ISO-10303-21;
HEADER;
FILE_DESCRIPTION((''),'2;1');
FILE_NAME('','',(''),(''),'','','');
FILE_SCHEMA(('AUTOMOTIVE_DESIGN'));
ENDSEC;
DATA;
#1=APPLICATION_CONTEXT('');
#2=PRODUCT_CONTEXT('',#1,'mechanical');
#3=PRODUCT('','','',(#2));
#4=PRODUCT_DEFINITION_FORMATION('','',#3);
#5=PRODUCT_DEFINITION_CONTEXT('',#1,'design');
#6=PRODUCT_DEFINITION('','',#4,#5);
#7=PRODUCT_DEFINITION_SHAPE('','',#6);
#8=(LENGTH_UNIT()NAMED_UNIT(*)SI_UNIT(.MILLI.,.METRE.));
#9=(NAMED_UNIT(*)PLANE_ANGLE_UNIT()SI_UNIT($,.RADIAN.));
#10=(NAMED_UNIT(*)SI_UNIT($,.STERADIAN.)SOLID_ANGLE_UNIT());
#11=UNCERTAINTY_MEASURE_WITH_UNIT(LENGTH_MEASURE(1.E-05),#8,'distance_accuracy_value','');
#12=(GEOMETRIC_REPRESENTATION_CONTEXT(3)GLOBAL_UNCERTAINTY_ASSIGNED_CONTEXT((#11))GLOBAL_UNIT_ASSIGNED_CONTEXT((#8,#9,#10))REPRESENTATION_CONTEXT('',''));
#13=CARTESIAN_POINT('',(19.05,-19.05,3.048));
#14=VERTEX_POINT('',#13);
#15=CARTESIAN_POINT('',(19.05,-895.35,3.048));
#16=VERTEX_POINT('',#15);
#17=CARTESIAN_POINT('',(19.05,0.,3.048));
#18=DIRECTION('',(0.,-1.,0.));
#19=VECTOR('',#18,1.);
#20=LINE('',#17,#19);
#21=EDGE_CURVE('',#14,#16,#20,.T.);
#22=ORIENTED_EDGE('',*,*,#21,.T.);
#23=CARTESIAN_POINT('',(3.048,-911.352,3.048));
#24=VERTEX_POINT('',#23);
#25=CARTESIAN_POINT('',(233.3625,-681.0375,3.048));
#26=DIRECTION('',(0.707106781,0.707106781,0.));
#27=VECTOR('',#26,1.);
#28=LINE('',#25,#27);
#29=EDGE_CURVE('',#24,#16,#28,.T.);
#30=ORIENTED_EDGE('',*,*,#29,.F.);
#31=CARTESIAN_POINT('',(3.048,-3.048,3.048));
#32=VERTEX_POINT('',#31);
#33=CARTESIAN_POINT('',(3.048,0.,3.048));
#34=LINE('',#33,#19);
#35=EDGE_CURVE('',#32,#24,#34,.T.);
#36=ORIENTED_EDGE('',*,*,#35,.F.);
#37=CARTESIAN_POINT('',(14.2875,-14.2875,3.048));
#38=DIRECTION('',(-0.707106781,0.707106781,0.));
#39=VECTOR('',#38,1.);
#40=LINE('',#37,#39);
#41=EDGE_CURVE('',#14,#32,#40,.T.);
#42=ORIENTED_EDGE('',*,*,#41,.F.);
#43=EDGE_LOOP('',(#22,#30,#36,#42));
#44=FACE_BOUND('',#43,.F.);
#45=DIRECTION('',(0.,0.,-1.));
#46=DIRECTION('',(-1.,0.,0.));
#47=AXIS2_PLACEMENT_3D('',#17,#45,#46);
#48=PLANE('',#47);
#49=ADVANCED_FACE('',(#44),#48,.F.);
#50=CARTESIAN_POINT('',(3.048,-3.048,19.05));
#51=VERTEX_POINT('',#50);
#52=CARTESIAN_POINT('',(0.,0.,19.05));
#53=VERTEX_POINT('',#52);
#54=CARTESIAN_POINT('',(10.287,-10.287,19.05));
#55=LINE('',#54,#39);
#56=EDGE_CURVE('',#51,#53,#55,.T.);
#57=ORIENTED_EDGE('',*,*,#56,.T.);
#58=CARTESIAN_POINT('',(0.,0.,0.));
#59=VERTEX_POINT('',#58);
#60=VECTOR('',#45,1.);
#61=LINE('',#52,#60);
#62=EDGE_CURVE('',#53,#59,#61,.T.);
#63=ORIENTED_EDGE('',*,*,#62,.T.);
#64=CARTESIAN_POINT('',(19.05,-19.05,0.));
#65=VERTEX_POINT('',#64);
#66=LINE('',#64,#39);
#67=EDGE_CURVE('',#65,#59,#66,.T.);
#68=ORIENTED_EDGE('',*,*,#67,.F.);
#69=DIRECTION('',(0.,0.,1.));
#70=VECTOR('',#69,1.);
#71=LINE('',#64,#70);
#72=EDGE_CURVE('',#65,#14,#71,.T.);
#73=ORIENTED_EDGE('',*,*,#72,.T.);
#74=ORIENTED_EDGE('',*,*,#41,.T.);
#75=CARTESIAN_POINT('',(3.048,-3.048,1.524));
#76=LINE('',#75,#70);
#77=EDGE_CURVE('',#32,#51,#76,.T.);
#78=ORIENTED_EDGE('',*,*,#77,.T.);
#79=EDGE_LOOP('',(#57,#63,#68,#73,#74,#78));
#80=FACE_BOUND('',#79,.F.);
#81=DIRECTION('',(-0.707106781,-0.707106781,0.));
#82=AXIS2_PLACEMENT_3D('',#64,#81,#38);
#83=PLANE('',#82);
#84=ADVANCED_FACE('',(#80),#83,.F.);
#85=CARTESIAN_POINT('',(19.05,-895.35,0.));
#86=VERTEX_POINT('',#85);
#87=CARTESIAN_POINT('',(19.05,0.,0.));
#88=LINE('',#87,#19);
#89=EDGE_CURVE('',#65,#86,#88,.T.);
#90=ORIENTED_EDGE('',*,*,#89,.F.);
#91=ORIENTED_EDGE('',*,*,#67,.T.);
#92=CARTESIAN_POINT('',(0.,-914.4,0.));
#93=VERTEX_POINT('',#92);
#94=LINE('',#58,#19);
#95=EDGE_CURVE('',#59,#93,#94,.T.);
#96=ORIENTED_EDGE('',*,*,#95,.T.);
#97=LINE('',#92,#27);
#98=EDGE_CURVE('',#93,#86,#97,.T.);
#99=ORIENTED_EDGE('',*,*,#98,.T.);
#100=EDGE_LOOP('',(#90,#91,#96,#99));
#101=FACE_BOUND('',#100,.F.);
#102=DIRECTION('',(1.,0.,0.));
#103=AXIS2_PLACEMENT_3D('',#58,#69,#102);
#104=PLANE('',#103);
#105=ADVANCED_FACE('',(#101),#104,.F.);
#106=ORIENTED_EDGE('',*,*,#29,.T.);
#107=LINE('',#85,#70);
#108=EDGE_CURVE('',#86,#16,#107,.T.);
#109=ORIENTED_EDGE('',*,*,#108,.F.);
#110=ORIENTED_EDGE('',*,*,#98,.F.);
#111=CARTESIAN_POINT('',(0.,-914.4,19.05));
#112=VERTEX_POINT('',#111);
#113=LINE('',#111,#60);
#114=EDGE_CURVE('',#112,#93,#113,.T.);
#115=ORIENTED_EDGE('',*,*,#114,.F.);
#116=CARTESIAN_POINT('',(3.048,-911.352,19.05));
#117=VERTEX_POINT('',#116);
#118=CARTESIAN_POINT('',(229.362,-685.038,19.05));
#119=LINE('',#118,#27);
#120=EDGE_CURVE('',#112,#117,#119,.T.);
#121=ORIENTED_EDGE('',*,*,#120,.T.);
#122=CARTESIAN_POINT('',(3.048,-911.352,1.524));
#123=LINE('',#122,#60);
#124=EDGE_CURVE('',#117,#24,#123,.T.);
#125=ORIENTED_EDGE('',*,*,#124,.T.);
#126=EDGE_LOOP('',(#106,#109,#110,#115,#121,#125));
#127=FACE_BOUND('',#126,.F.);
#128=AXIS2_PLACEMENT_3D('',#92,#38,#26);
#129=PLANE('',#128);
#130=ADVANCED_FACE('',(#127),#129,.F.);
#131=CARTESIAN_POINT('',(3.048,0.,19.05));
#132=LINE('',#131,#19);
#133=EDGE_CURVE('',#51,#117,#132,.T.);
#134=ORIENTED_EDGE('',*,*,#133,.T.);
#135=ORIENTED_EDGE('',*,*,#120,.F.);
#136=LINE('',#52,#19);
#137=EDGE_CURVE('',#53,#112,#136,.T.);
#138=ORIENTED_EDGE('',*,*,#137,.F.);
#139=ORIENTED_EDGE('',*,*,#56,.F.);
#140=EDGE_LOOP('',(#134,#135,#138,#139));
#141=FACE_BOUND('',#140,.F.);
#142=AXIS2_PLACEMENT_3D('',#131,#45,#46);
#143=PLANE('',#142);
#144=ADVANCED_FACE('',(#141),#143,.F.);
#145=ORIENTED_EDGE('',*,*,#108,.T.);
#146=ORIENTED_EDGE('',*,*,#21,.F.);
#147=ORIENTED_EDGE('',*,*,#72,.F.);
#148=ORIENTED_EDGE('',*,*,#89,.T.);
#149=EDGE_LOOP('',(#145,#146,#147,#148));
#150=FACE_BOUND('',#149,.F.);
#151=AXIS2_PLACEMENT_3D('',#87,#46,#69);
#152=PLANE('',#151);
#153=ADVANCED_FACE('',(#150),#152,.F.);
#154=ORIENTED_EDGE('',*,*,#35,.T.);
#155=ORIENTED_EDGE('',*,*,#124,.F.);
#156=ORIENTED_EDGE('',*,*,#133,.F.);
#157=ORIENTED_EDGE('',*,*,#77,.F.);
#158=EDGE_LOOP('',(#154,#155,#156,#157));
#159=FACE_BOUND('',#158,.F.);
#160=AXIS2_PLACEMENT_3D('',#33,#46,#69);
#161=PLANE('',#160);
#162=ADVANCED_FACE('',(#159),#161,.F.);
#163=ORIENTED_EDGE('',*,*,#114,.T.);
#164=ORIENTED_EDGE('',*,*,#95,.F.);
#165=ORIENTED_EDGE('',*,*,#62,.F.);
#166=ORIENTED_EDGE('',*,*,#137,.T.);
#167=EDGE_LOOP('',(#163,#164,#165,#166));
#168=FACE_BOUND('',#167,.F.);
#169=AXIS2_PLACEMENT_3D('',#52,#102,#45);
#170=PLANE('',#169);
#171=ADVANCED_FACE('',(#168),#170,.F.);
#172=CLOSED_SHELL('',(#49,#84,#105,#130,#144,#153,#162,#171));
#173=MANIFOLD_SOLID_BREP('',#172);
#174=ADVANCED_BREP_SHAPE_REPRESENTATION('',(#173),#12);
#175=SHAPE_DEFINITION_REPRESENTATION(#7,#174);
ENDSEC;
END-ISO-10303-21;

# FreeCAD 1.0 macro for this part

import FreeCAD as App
import Part
import Sketcher

V = App.Vector
Q = App.Units.Quantity


def add_polygon(sketch, points):
    """Adds a closed chain of lines whose ends are joined by coincident constraints."""
    first, n = sketch.GeometryCount, len(points)
    for a, b in zip(points, points[1:] + points[:1]):
        sketch.addGeometry(Part.LineSegment(App.Vector(*a, 0), App.Vector(*b, 0)), False)
    for i in range(n):
        sketch.addConstraint(Sketcher.Constraint("Coincident", first + i, 2, first + (i + 1) % n, 1))

doc = App.newDocument("Part")
body = doc.addObject("PartDesign::Body", "Body")

# Sketch on XZ plane
sketch1 = doc.addObject("Sketcher::SketchObject", "Sketch")
body.addObject(sketch1)
sketch1.AttachmentSupport = (doc.XZ_Plane, [""])
sketch1.MapMode = "FlatFace"
add_polygon(sketch1, [(0, 19.1), (0, 0), (19.1, 0), (19.1, 3), (3, 3), (3, 19.1)])  # lines 0-5
sketch1.addConstraint([
    Sketcher.Constraint("Vertical", 0),
    Sketcher.Constraint("Horizontal", 1),
    Sketcher.Constraint("Vertical", 2),
    Sketcher.Constraint("Horizontal", 3),
    Sketcher.Constraint("Vertical", 4),
    Sketcher.Constraint("Horizontal", 5),
    Sketcher.Constraint("Coincident", 0, 2, -1, 1),
    Sketcher.Constraint("Equal", 1, 0),
    Sketcher.Constraint("Equal", 5, 2),
    Sketcher.Constraint("DistanceX", 1, 1, 1, 2, Q("0.75 in")),
    Sketcher.Constraint("DistanceX", 3, 2, 3, 1, Q("0.63 in")),
])
pad1 = doc.addObject("PartDesign::Pad", "Pad")
body.addObject(pad1)
pad1.Profile = sketch1
pad1.Length = Q("36 in")

# Sketch on XY plane
sketch2 = doc.addObject("Sketcher::SketchObject", "Sketch001")
body.addObject(sketch2)
sketch2.AttachmentSupport = (doc.XY_Plane, [""])
sketch2.MapMode = "FlatFace"
add_polygon(sketch2, [(19, -914), (0, -914), (19, -895)])  # lines 0-2
sketch2.addConstraint([
    Sketcher.Constraint("Horizontal", 0),
    Sketcher.Constraint("Vertical", 2),
    Sketcher.Constraint("PointOnObject", 0, 2, -2),
    Sketcher.Constraint("Equal", 0, 2),
    Sketcher.Constraint("DistanceY", 0, 2, -1, 1, Q("36 in")),
    Sketcher.Constraint("DistanceX", 0, 2, 0, 1, Q("0.75 in")),
])
pocket1 = doc.addObject("PartDesign::Pocket", "Pocket")
body.addObject(pocket1)
pocket1.Profile = sketch2
pocket1.Type = "ThroughAll"
pocket1.Reversed = True

# Sketch on XY plane
sketch3 = doc.addObject("Sketcher::SketchObject", "Sketch002")
body.addObject(sketch3)
sketch3.AttachmentSupport = (doc.XY_Plane, [""])
sketch3.MapMode = "FlatFace"
add_polygon(sketch3, [(19, -19), (0, 0), (19, 0)])  # lines 0-2
sketch3.addConstraint([
    Sketcher.Constraint("Horizontal", 1),
    Sketcher.Constraint("Vertical", 2),
    Sketcher.Constraint("Coincident", 0, 2, -1, 1),
    Sketcher.Constraint("Equal", 1, 2),
    Sketcher.Constraint("DistanceX", 1, 1, 1, 2, Q("0.75 in")),
])
pocket2 = doc.addObject("PartDesign::Pocket", "Pocket001")
body.addObject(pocket2)
pocket2.Profile = sketch3
pocket2.Type = "ThroughAll"
pocket2.Reversed = True

doc.recompute()
